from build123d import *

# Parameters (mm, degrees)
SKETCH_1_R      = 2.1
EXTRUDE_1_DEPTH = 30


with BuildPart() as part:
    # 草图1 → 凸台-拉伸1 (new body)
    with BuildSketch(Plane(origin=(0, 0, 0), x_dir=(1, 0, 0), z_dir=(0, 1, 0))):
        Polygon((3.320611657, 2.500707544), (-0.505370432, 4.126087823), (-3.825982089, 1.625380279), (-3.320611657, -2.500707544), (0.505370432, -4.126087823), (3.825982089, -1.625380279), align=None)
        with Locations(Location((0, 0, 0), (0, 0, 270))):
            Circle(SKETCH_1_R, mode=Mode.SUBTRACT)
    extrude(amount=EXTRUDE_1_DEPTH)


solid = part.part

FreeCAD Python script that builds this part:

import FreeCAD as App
import Part
import Sketcher
from FreeCAD import Vector
Q = App.Units.Quantity


def add_polygon(sketch, points):
    """Adds a closed chain of lines whose ends are joined by coincident constraints."""
    first, n = sketch.GeometryCount, len(points)
    for a, b in zip(points, points[1:] + points[:1]):
        sketch.addGeometry(Part.LineSegment(App.Vector(*a, 0), App.Vector(*b, 0)), False)
    for i in range(n):
        sketch.addConstraint(Sketcher.Constraint("Coincident", first + i, 2, first + (i + 1) % n, 1))

doc = App.newDocument("Part")
body = doc.addObject("PartDesign::Body", "Body")

# Sketch on XZ plane
sketch1 = body.newObject("Sketcher::SketchObject", "Sketch")
sketch1.AttachmentSupport = (doc.getObject("XZ_Plane"), [""])
sketch1.MapMode = "FlatFace"
add_polygon(sketch1, [(3.3, -2.5), (-0.5, -4.1), (-3.8, -1.6), (-3.3, 2.5), (0.5, 4.1), (3.8, 1.6)])  # lines 0-5
sketch1.addGeometry(Part.Circle(Vector(0, 0, 0), Vector(0, 0, 1), 2.1), False)  # 6
sketch1.addConstraint([
    Sketcher.Constraint("Coincident", 6, 3, -1, 1),
    Sketcher.Constraint("Symmetric", 0, 2, 3, 2, -1, 1),
    Sketcher.Constraint("Symmetric", 1, 2, 4, 2, -1, 1),
    Sketcher.Constraint("Symmetric", 2, 2, 5, 2, -1, 1),
    Sketcher.Constraint("Equal", 0, 1),
    Sketcher.Constraint("Equal", 1, 2),
    Sketcher.Constraint("Diameter", 6, Q("4.2 mm")),
    Sketcher.Constraint("Distance", 0, Q("4.156922 mm")),
    Sketcher.Constraint("DistanceX", 0, 2, -1, 1, Q("0.50537 mm")),
    Sketcher.Constraint("DistanceY", 1, 2, -1, 1, Q("1.62538 mm")),
    Sketcher.Constraint("DistanceX", 2, 2, -1, 1, Q("3.320612 mm")),
])
pad1 = body.newObject("PartDesign::Pad", "Pad")
pad1.Profile = sketch1
pad1.Length = 30
pad1.Reversed = True

doc.recompute()
